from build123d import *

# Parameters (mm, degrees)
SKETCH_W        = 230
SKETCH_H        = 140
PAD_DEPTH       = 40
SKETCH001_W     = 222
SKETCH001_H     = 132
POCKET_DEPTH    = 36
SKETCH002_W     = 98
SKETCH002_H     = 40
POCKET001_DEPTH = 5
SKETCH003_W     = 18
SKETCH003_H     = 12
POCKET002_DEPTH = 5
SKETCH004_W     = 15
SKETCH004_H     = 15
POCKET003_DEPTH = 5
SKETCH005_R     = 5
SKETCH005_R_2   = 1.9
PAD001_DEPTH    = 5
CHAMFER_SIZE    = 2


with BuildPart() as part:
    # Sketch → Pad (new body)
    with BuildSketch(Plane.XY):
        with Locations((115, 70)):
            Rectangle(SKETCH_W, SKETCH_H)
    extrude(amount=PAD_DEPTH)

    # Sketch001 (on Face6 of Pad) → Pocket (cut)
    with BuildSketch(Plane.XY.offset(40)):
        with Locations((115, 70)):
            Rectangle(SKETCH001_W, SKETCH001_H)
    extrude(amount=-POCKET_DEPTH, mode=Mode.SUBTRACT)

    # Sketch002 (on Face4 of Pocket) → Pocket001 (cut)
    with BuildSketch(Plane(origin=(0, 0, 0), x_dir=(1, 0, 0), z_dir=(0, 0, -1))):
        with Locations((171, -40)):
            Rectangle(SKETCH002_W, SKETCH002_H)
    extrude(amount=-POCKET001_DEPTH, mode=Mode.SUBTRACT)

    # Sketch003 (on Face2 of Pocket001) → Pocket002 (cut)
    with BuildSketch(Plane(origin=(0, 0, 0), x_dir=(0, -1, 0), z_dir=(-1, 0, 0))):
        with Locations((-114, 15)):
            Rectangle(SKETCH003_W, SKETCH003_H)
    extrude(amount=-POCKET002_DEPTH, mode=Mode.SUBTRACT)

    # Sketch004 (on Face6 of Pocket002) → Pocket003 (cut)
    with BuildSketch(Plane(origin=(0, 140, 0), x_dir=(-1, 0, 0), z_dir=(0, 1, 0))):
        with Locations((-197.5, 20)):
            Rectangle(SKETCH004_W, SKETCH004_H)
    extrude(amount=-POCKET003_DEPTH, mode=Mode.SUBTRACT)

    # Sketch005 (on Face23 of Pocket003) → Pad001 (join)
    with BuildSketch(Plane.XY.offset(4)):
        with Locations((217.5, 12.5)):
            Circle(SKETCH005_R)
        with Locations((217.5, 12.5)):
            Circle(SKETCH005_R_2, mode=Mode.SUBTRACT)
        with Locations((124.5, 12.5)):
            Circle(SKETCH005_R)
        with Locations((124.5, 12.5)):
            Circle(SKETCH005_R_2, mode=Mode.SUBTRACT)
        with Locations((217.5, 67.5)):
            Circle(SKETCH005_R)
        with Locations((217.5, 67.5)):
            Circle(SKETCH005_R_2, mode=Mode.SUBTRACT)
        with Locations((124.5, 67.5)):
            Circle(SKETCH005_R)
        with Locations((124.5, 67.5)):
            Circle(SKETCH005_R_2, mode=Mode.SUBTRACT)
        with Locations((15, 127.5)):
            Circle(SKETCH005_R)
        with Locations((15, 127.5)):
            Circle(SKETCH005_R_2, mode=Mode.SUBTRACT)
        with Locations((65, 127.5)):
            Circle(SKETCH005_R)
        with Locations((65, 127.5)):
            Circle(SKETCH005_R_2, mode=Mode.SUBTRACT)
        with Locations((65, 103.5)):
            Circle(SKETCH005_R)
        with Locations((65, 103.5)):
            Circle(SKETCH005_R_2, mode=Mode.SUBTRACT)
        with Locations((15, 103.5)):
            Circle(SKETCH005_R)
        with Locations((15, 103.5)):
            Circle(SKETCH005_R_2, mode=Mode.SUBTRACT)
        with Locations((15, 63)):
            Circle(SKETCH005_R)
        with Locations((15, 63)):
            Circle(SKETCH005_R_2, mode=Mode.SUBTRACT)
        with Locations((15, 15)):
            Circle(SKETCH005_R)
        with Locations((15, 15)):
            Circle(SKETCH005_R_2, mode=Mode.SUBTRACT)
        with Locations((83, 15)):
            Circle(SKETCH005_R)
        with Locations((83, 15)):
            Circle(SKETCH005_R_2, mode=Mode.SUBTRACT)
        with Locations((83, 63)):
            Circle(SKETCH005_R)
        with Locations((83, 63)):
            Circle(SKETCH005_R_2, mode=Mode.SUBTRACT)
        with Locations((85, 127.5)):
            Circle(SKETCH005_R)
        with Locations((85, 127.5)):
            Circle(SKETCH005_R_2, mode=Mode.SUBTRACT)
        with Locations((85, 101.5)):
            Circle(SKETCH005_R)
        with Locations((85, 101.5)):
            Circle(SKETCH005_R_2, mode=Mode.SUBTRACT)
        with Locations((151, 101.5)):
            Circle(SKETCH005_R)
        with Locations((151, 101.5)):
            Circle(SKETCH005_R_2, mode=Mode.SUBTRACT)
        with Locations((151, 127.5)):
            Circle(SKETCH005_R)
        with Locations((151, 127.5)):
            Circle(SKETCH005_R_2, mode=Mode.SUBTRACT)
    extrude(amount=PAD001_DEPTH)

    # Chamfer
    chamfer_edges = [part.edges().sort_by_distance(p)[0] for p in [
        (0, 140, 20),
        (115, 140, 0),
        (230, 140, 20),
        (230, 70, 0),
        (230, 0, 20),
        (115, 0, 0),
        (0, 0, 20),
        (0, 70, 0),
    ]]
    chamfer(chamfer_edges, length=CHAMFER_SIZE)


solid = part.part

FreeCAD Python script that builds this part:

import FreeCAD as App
import Part
import Sketcher

V = App.Vector


def edges_at(feature, points):
    """Names of the edges that pass closest to the given points."""
    edges = feature.Shape.Edges
    near = lambda p: min(range(len(edges)), key=lambda i: edges[i].distToShape(Part.Vertex(*p))[0])
    return sorted({f"Edge{near(p) + 1}" for p in points})

doc = App.newDocument("Part")
body = doc.addObject("PartDesign::Body", "Body")

sketch1 = doc.addObject("Sketcher::SketchObject", "Sketch")
body.addObject(sketch1)
sketch1.AttachmentSupport = (doc.XY_Plane, [""])
sketch1.MapMode = "FlatFace"
sketch1.addGeometry([
    Part.LineSegment(V(0, 140, 0), V(0, 0, 0)),
    Part.LineSegment(V(0, 0, 0), V(230, 0, 0)),
    Part.LineSegment(V(230, 0, 0), V(230, 140, 0)),
    Part.LineSegment(V(230, 140, 0), V(0, 140, 0)),
], False)
sketch1.addConstraint([
    Sketcher.Constraint("Coincident", 0, 2, 1, 1),
    Sketcher.Constraint("Coincident", 1, 2, 2, 1),
    Sketcher.Constraint("Coincident", 2, 2, 3, 1),
    Sketcher.Constraint("Coincident", 3, 2, 0, 1),
    Sketcher.Constraint("Vertical", 0),
    Sketcher.Constraint("Horizontal", 1),
    Sketcher.Constraint("Vertical", 2),
    Sketcher.Constraint("Horizontal", 3),
    Sketcher.Constraint("Coincident", 0, 2, -1, 1),
    Sketcher.Constraint("DistanceX", 1, 1, 1, 2, 230.0),
    Sketcher.Constraint("DistanceY", 0, 2, 0, 1, 140.0),
])
pad1 = doc.addObject("PartDesign::Pad", "Pad")
body.addObject(pad1)
pad1.Profile = sketch1
pad1.Length = 40

sketch2 = doc.addObject("Sketcher::SketchObject", "Sketch001")
body.addObject(sketch2)
sketch2.AttachmentSupport = (doc.XY_Plane, [""])
sketch2.MapMode = "FlatFace"
sketch2.AttachmentOffset = App.Placement(V(0, 0, 40), App.Rotation())
sketch2.addGeometry([
    Part.LineSegment(V(4, 136, 0), V(4, 4, 0)),
    Part.LineSegment(V(4, 4, 0), V(226, 4, 0)),
    Part.LineSegment(V(226, 4, 0), V(226, 136, 0)),
    Part.LineSegment(V(226, 136, 0), V(4, 136, 0)),
], False)
sketch2.addConstraint([
    Sketcher.Constraint("Coincident", 0, 2, 1, 1),
    Sketcher.Constraint("Coincident", 1, 2, 2, 1),
    Sketcher.Constraint("Coincident", 2, 2, 3, 1),
    Sketcher.Constraint("Coincident", 3, 2, 0, 1),
    Sketcher.Constraint("Vertical", 0),
    Sketcher.Constraint("Horizontal", 1),
    Sketcher.Constraint("Vertical", 2),
    Sketcher.Constraint("Horizontal", 3),
    Sketcher.Constraint("DistanceX", 1, 1, 1, 2, 222.0),
    Sketcher.Constraint("DistanceY", 0, 2, 0, 1, 132.0),
    Sketcher.Constraint("DistanceX", -1, 1, 0, 2, 4.0),
    Sketcher.Constraint("DistanceY", -1, 1, 0, 2, 4.0),
])
pocket1 = doc.addObject("PartDesign::Pocket", "Pocket")
body.addObject(pocket1)
pocket1.Profile = sketch2
pocket1.Length = 36

sketch3 = doc.addObject("Sketcher::SketchObject", "Sketch002")
body.addObject(sketch3)
sketch3.AttachmentSupport = (doc.XY_Plane, [""])
sketch3.MapMode = "FlatFace"
sketch3.addGeometry([
    Part.LineSegment(V(122, 20, 0), V(122, 60, 0)),
    Part.LineSegment(V(122, 60, 0), V(220, 60, 0)),
    Part.LineSegment(V(220, 60, 0), V(220, 20, 0)),
    Part.LineSegment(V(220, 20, 0), V(122, 20, 0)),
], False)
sketch3.addConstraint([
    Sketcher.Constraint("Coincident", 0, 2, 1, 1),
    Sketcher.Constraint("Coincident", 1, 2, 2, 1),
    Sketcher.Constraint("Coincident", 2, 2, 3, 1),
    Sketcher.Constraint("Coincident", 3, 2, 0, 1),
    Sketcher.Constraint("Vertical", 0),
    Sketcher.Constraint("Horizontal", 1),
    Sketcher.Constraint("Vertical", 2),
    Sketcher.Constraint("Horizontal", 3),
    Sketcher.Constraint("DistanceX", 1, 1, 1, 2, 98.0),
    Sketcher.Constraint("DistanceY", 0, 1, 0, 2, 40.0),
    Sketcher.Constraint("DistanceX", -1, 1, 0, 2, 122.0),
    Sketcher.Constraint("DistanceY", -1, 1, 0, 2, 60.0),
])
pocket2 = doc.addObject("PartDesign::Pocket", "Pocket001")
body.addObject(pocket2)
pocket2.Profile = sketch3
pocket2.Length = 5
pocket2.Reversed = True

sketch4 = doc.addObject("Sketcher::SketchObject", "Sketch003")
body.addObject(sketch4)
sketch4.AttachmentSupport = (doc.YZ_Plane, [""])
sketch4.MapMode = "FlatFace"
sketch4.addGeometry([
    Part.LineSegment(V(123, 21, 0), V(123, 9, 0)),
    Part.LineSegment(V(123, 9, 0), V(105, 9, 0)),
    Part.LineSegment(V(105, 9, 0), V(105, 21, 0)),
    Part.LineSegment(V(105, 21, 0), V(123, 21, 0)),
], False)
sketch4.addConstraint([
    Sketcher.Constraint("Coincident", 0, 2, 1, 1),
    Sketcher.Constraint("Coincident", 1, 2, 2, 1),
    Sketcher.Constraint("Coincident", 2, 2, 3, 1),
    Sketcher.Constraint("Coincident", 3, 2, 0, 1),
    Sketcher.Constraint("Vertical", 0),
    Sketcher.Constraint("Horizontal", 1),
    Sketcher.Constraint("Vertical", 2),
    Sketcher.Constraint("Horizontal", 3),
    Sketcher.Constraint("DistanceX", 1, 2, 1, 1, 18.0),
    Sketcher.Constraint("DistanceY", 0, 2, 0, 1, 12.0),
    Sketcher.Constraint("DistanceX", -1, 1, 0, 2, 123.0),
    Sketcher.Constraint("DistanceY", -1, 1, 0, 2, 9.0),
])
pocket3 = doc.addObject("PartDesign::Pocket", "Pocket002")
body.addObject(pocket3)
pocket3.Profile = sketch4
pocket3.Length = 5
pocket3.Reversed = True

sketch5 = doc.addObject("Sketcher::SketchObject", "Sketch004")
body.addObject(sketch5)
sketch5.AttachmentSupport = (doc.XZ_Plane, [""])
sketch5.MapMode = "FlatFace"
sketch5.AttachmentOffset = App.Placement(V(0, 0, -140), App.Rotation())
sketch5.addGeometry([
    Part.LineSegment(V(205, 28, 0), V(205, 12, 0)),
    Part.LineSegment(V(205, 12, 0), V(190, 12, 0)),
    Part.LineSegment(V(190, 12, 0), V(190, 28, 0)),
    Part.LineSegment(V(190, 28, 0), V(205, 28, 0)),
], False)
sketch5.addConstraint([
    Sketcher.Constraint("Coincident", 0, 2, 1, 1),
    Sketcher.Constraint("Coincident", 1, 2, 2, 1),
    Sketcher.Constraint("Coincident", 2, 2, 3, 1),
    Sketcher.Constraint("Coincident", 3, 2, 0, 1),
    Sketcher.Constraint("Vertical", 0),
    Sketcher.Constraint("Horizontal", 1),
    Sketcher.Constraint("Vertical", 2),
    Sketcher.Constraint("Horizontal", 3),
    Sketcher.Constraint("Equal", 3, 0),
    Sketcher.Constraint("DistanceX", 1, 2, 1, 1, 15.0),
    Sketcher.Constraint("DistanceX", -1, 1, 0, 2, 205.0),
    Sketcher.Constraint("DistanceY", -1, 1, 0, 2, 12.5),
])
pocket4 = doc.addObject("PartDesign::Pocket", "Pocket003")
body.addObject(pocket4)
pocket4.Profile = sketch5
pocket4.Length = 5
pocket4.Reversed = True

sketch6 = doc.addObject("Sketcher::SketchObject", "Sketch005")
body.addObject(sketch6)
sketch6.AttachmentSupport = (doc.XY_Plane, [""])
sketch6.MapMode = "FlatFace"
sketch6.AttachmentOffset = App.Placement(V(0, 0, 4), App.Rotation())
sketch6.addGeometry([
    Part.Circle(V(217.5, 12.5, 0), V(0, 0, 1), 5),
    Part.Circle(V(217.5, 12.5, 0), V(0, 0, 1), 1.9),
    Part.Circle(V(124.5, 12.5, 0), V(0, 0, 1), 5),
    Part.Circle(V(124.5, 12.5, 0), V(0, 0, 1), 1.9),
    Part.Circle(V(217.5, 67.5, 0), V(0, 0, 1), 5),
    Part.Circle(V(217.5, 67.5, 0), V(0, 0, 1), 1.9),
    Part.Circle(V(124.5, 67.5, 0), V(0, 0, 1), 5),
    Part.Circle(V(124.5, 67.5, 0), V(0, 0, 1), 1.9),
    Part.Circle(V(15, 127.5, 0), V(0, 0, 1), 5),
    Part.Circle(V(15, 127.5, 0), V(0, 0, 1), 1.9),
    Part.Circle(V(65, 127.5, 0), V(0, 0, 1), 5),
    Part.Circle(V(65, 127.5, 0), V(0, 0, 1), 1.9),
    Part.Circle(V(65, 103.5, 0), V(0, 0, 1), 5),
    Part.Circle(V(65, 103.5, 0), V(0, 0, 1), 1.9),
    Part.Circle(V(15, 103.5, 0), V(0, 0, 1), 5),
    Part.Circle(V(15, 103.5, 0), V(0, 0, 1), 1.9),
    Part.Circle(V(15, 63, 0), V(0, 0, 1), 5),
    Part.Circle(V(15, 63, 0), V(0, 0, 1), 1.9),
    Part.Circle(V(15, 15, 0), V(0, 0, 1), 5),
    Part.Circle(V(15, 15, 0), V(0, 0, 1), 1.9),
    Part.Circle(V(83, 15, 0), V(0, 0, 1), 5),
    Part.Circle(V(83, 15, 0), V(0, 0, 1), 1.9),
    Part.Circle(V(83, 63, 0), V(0, 0, 1), 5),
    Part.Circle(V(83, 63, 0), V(0, 0, 1), 1.9),
    Part.Circle(V(85, 127.5, 0), V(0, 0, 1), 5),
    Part.Circle(V(85, 127.5, 0), V(0, 0, 1), 1.9),
    Part.Circle(V(85, 101.5, 0), V(0, 0, 1), 5),
    Part.Circle(V(85, 101.5, 0), V(0, 0, 1), 1.9),
    Part.Circle(V(151, 101.5, 0), V(0, 0, 1), 5),
    Part.Circle(V(151, 101.5, 0), V(0, 0, 1), 1.9),
    Part.Circle(V(151, 127.5, 0), V(0, 0, 1), 5),
    Part.Circle(V(151, 127.5, 0), V(0, 0, 1), 1.9),
], False)
sketch6.addConstraint([
    Sketcher.Constraint("Coincident", 1, 3, 0, 3),
    Sketcher.Constraint("Coincident", 3, 3, 2, 3),
    Sketcher.Constraint("Coincident", 5, 3, 4, 3),
    Sketcher.Constraint("Coincident", 7, 3, 6, 3),
    Sketcher.Constraint("Coincident", 9, 3, 8, 3),
    Sketcher.Constraint("Coincident", 11, 3, 10, 3),
    Sketcher.Constraint("Coincident", 13, 3, 12, 3),
    Sketcher.Constraint("Coincident", 15, 3, 14, 3),
    Sketcher.Constraint("Coincident", 17, 3, 16, 3),
    Sketcher.Constraint("Coincident", 19, 3, 18, 3),
    Sketcher.Constraint("Coincident", 21, 3, 20, 3),
    Sketcher.Constraint("Coincident", 23, 3, 22, 3),
    Sketcher.Constraint("Coincident", 25, 3, 24, 3),
    Sketcher.Constraint("Coincident", 27, 3, 26, 3),
    Sketcher.Constraint("Coincident", 29, 3, 28, 3),
    Sketcher.Constraint("Coincident", 31, 3, 30, 3),
    Sketcher.Constraint("Equal", 0, 2),
    Sketcher.Constraint("Equal", 1, 3),
    Sketcher.Constraint("Equal", 2, 4),
    Sketcher.Constraint("Equal", 3, 5),
    Sketcher.Constraint("Equal", 4, 6),
    Sketcher.Constraint("Equal", 5, 7),
    Sketcher.Constraint("Equal", 6, 8),
    Sketcher.Constraint("Equal", 7, 9),
    Sketcher.Constraint("Equal", 8, 10),
    Sketcher.Constraint("Equal", 9, 11),
    Sketcher.Constraint("Equal", 10, 12),
    Sketcher.Constraint("Equal", 11, 13),
    Sketcher.Constraint("Equal", 12, 14),
    Sketcher.Constraint("Equal", 13, 15),
    Sketcher.Constraint("Equal", 14, 16),
    Sketcher.Constraint("Equal", 15, 17),
    Sketcher.Constraint("Equal", 16, 18),
    Sketcher.Constraint("Equal", 17, 19),
    Sketcher.Constraint("Equal", 18, 20),
    Sketcher.Constraint("Equal", 19, 21),
    Sketcher.Constraint("Equal", 20, 22),
    Sketcher.Constraint("Equal", 21, 23),
    Sketcher.Constraint("Equal", 22, 24),
    Sketcher.Constraint("Equal", 23, 25),
    Sketcher.Constraint("Equal", 24, 26),
    Sketcher.Constraint("Equal", 25, 27),
    Sketcher.Constraint("Equal", 26, 28),
    Sketcher.Constraint("Equal", 27, 29),
    Sketcher.Constraint("Equal", 28, 30),
    Sketcher.Constraint("Equal", 29, 31),
    Sketcher.Constraint("Horizontal", 1, 3, 2, 3),
    Sketcher.Constraint("Horizontal", 5, 3, 6, 3),
    Sketcher.Constraint("Horizontal", 9, 3, 10, 3),
    Sketcher.Constraint("Horizontal", 13, 3, 14, 3),
    Sketcher.Constraint("Horizontal", 19, 3, 20, 3),
    Sketcher.Constraint("Horizontal", 17, 3, 22, 3),
    Sketcher.Constraint("Horizontal", 11, 3, 24, 3),
    Sketcher.Constraint("Horizontal", 27, 3, 28, 3),
    Sketcher.Constraint("Horizontal", 25, 3, 30, 3),
    Sketcher.Constraint("Vertical", 1, 3, 4, 3),
    Sketcher.Constraint("Vertical", 3, 3, 6, 3),
    Sketcher.Constraint("Vertical", 11, 3, 12, 3),
    Sketcher.Constraint("Vertical", 9, 3, 14, 3),
    Sketcher.Constraint("Vertical", 15, 3, 16, 3),
    Sketcher.Constraint("Vertical", 17, 3, 18, 3),
    Sketcher.Constraint("Vertical", 21, 3, 22, 3),
    Sketcher.Constraint("Vertical", 25, 3, 26, 3),
    Sketcher.Constraint("Vertical", 29, 3, 30, 3),
    Sketcher.Constraint("Diameter", 0, 10.0),
    Sketcher.Constraint("Diameter", 1, 3.8),
    Sketcher.Constraint("DistanceX", -1, 1, 8, 3, 15.0),
    Sketcher.Constraint("DistanceX", -1, 1, 10, 3, 65.0),
    Sketcher.Constraint("DistanceY", -1, 1, 16, 3, 63.0),
    Sketcher.Constraint("DistanceY", -1, 1, 18, 3, 15.0),
    Sketcher.Constraint("DistanceX", -1, 1, 20, 3, 83.0),
    Sketcher.Constraint("DistanceX", -1, 1, 24, 3, 85.0),
    Sketcher.Constraint("DistanceX", -1, 1, 28, 3, 151.0),
    Sketcher.Constraint("DistanceX", 2, 3, 0, 3, 93.0),
    Sketcher.Constraint("DistanceY", 0, 3, 4, 3, 55.0),
    Sketcher.Constraint("DistanceY", 6, 3, 8, 3, 60.0),
    Sketcher.Constraint("DistanceY", 12, 3, 10, 3, 24.0),
    Sketcher.Constraint("DistanceY", 26, 3, 12, 3, 2.0),
    Sketcher.Constraint("DistanceX", -1, 1, 0, 3, 217.5),
    Sketcher.Constraint("DistanceY", -1, 1, 0, 3, 12.5),
])
pad2 = doc.addObject("PartDesign::Pad", "Pad001")
body.addObject(pad2)
pad2.Profile = sketch6
pad2.Length = 5
doc.recompute()

chamfer = doc.addObject("PartDesign::Chamfer", "Chamfer")
body.addObject(chamfer)
chamfer.Base = (pad2, edges_at(pad2, [
    (0, 140, 20),
    (115, 140, 0),
    (230, 140, 20),
    (230, 70, 0),
    (230, 0, 20),
    (115, 0, 0),
    (0, 0, 20),
    (0, 70, 0),
]))
chamfer.Size = 2

doc.recompute()
